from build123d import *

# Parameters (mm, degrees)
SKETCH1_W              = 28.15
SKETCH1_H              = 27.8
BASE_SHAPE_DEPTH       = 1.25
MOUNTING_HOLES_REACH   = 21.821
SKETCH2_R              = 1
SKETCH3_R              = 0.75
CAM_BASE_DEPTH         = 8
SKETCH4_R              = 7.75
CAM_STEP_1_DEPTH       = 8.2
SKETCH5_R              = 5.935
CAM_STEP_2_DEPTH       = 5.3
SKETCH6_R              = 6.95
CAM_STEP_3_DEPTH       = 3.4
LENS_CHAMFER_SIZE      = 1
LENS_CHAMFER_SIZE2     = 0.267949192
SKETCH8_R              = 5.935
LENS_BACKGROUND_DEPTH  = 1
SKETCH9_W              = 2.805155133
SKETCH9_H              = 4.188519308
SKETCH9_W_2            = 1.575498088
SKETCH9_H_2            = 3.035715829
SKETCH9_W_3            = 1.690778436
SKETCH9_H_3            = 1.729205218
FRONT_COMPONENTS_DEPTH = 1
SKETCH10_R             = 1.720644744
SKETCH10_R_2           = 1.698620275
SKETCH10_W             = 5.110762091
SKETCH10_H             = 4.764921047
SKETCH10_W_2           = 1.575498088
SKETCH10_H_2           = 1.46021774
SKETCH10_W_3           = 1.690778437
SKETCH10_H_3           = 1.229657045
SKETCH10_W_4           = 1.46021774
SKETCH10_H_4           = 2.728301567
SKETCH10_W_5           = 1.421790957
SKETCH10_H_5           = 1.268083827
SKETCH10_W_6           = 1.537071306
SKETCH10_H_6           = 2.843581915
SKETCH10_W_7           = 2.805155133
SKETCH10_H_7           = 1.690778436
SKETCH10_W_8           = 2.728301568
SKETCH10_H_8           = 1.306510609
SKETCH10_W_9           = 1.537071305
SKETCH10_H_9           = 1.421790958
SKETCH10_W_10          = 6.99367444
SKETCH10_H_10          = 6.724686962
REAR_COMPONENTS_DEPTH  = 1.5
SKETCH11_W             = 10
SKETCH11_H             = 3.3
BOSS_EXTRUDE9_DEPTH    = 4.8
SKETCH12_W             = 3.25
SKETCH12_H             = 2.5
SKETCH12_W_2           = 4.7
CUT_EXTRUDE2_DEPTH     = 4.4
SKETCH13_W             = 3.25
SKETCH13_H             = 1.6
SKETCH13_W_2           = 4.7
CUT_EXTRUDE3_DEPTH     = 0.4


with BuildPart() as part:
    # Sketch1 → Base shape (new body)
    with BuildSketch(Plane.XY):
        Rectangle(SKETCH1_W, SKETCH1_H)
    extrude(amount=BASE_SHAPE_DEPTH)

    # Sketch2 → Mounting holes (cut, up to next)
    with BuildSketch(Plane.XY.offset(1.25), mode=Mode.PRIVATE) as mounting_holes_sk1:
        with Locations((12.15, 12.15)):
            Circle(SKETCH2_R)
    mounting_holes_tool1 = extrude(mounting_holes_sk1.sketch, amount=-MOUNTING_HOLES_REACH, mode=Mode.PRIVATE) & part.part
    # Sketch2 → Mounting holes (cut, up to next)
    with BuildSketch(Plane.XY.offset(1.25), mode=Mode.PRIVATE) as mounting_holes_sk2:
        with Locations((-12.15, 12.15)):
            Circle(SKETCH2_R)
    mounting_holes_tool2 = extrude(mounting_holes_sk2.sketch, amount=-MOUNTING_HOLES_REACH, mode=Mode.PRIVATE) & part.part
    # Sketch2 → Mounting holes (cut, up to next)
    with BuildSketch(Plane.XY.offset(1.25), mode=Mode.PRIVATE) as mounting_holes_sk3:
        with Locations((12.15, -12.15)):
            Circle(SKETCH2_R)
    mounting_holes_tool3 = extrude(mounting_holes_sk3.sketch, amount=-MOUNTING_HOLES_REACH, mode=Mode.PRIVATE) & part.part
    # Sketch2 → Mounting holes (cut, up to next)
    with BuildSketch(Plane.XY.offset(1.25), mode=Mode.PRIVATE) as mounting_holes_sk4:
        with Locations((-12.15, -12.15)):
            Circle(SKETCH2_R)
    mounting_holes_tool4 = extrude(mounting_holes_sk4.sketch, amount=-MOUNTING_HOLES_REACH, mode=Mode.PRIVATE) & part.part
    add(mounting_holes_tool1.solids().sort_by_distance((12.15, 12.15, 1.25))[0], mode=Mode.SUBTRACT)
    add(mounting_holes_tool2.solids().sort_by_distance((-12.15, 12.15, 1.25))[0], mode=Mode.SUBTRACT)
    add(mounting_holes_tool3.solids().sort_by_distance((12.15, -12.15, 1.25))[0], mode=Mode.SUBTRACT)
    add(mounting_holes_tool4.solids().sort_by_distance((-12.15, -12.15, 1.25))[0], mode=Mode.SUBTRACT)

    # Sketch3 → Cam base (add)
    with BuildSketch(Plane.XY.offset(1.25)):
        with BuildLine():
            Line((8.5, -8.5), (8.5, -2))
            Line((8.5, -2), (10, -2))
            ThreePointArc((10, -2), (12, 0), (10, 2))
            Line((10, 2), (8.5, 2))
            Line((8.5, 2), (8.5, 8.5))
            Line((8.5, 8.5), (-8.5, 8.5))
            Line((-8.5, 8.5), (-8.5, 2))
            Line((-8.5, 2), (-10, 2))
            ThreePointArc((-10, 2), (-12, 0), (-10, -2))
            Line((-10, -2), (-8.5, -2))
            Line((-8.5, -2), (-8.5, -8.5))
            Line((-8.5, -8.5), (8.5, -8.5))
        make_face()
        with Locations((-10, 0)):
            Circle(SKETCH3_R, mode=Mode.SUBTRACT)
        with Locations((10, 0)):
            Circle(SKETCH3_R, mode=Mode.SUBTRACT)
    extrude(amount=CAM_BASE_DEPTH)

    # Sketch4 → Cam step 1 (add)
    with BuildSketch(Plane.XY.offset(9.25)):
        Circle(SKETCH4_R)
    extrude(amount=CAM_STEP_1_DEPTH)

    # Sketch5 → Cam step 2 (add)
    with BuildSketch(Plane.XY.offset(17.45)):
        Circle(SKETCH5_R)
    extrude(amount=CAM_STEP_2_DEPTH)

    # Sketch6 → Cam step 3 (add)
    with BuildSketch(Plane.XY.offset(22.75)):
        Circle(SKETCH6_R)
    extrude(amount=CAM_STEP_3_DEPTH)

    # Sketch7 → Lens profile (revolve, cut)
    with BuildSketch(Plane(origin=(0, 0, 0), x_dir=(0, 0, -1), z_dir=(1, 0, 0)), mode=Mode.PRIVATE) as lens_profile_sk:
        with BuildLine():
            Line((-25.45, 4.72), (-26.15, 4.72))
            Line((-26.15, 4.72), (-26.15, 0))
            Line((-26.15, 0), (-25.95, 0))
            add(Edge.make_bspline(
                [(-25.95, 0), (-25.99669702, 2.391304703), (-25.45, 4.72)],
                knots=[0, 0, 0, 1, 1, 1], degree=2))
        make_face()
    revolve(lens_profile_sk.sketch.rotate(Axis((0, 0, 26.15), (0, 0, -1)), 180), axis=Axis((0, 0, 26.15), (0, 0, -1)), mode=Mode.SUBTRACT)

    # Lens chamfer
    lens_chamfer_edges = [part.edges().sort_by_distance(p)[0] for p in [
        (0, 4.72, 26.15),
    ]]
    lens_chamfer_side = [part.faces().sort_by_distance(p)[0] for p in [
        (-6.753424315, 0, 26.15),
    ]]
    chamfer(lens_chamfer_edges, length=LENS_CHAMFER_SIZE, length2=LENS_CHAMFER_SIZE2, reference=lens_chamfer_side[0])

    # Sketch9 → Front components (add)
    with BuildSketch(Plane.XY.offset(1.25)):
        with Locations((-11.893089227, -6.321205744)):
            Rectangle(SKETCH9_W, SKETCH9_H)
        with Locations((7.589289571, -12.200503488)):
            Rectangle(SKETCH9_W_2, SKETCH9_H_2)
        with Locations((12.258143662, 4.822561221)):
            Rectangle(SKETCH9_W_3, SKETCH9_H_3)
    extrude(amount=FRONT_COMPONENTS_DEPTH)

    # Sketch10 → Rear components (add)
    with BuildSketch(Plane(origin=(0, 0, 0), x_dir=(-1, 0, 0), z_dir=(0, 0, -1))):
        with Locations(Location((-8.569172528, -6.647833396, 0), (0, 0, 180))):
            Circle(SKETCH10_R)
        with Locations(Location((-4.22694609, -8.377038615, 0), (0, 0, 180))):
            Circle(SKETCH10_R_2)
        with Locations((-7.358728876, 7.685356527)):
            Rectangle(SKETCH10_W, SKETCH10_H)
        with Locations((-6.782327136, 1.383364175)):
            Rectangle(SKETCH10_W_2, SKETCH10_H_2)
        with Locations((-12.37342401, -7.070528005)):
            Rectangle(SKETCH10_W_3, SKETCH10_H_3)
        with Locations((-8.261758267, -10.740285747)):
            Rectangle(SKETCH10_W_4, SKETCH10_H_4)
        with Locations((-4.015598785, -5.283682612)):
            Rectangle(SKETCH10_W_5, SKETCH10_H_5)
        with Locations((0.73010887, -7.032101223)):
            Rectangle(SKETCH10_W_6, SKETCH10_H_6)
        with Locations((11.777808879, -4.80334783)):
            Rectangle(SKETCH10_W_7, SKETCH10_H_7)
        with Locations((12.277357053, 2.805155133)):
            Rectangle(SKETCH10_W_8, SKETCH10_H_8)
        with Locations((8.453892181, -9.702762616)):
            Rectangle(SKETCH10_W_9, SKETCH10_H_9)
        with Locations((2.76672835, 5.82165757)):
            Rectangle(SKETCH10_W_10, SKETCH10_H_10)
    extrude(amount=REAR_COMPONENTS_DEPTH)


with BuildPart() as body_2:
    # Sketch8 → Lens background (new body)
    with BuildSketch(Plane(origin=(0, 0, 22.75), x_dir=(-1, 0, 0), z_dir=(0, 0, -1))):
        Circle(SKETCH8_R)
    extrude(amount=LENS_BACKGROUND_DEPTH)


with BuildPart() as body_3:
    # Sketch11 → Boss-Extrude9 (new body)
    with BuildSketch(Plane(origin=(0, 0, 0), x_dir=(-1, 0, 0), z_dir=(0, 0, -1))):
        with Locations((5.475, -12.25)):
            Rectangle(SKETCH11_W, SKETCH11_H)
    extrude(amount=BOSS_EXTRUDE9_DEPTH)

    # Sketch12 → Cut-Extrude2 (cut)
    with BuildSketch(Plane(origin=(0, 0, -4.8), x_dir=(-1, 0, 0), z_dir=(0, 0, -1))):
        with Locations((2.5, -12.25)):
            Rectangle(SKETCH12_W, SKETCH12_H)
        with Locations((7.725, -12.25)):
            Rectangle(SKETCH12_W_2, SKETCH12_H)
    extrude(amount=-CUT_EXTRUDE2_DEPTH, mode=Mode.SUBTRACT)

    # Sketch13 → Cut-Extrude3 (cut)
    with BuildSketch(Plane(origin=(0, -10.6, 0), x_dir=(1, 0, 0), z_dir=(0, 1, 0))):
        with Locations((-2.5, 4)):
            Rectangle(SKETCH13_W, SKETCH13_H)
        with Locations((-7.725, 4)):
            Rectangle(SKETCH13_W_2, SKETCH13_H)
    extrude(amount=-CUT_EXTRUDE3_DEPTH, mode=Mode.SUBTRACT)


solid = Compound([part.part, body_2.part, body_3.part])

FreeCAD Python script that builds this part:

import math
import FreeCAD as App
import Part
import Sketcher
from FreeCAD import Vector
Q = App.Units.Quantity


def edges_at(feature, points):
    """Names of the edges that pass closest to the given points."""
    edges = feature.Shape.Edges
    near = lambda p: min(range(len(edges)), key=lambda i: edges[i].distToShape(Part.Vertex(*p))[0])
    return sorted({f"Edge{near(p) + 1}" for p in points})


def add_polygon(sketch, points):
    """Adds a closed chain of lines whose ends are joined by coincident constraints."""
    first, n = sketch.GeometryCount, len(points)
    for a, b in zip(points, points[1:] + points[:1]):
        sketch.addGeometry(Part.LineSegment(App.Vector(*a, 0), App.Vector(*b, 0)), False)
    for i in range(n):
        sketch.addConstraint(Sketcher.Constraint("Coincident", first + i, 2, first + (i + 1) % n, 1))

doc = App.newDocument("Part")
body = doc.addObject("PartDesign::Body", "Body")

# Sketch on XY plane
sketch1 = body.newObject("Sketcher::SketchObject", "Sketch")
sketch1.AttachmentSupport = (doc.getObject("XY_Plane"), [""])
sketch1.MapMode = "FlatFace"
add_polygon(sketch1, [(-14.075, 13.9), (-14.075, -13.9), (14.075, -13.9), (14.075, 13.9)])  # lines 0-3
sketch1.addConstraint(Sketcher.Constraint("Vertical", 0))
sketch1.addConstraint(Sketcher.Constraint("Horizontal", 1))
sketch1.addConstraint(Sketcher.Constraint("Vertical", 2))
sketch1.addConstraint(Sketcher.Constraint("Horizontal", 3))
sketch1.addConstraint(Sketcher.Constraint("Symmetric", 0, 2, 2, 2, -1, 1))
sketch1.addConstraint(Sketcher.Constraint("DistanceY", 0, 2, 0, 1, Q("27.8 mm")))
sketch1.addConstraint(Sketcher.Constraint("DistanceX", 1, 1, 1, 2, Q("28.15 mm")))
pad1 = body.newObject("PartDesign::Pad", "Pad")
pad1.Profile = sketch1
pad1.Length = 1.25

# Sketch on XY plane
sketch2 = body.newObject("Sketcher::SketchObject", "Sketch001")
sketch2.AttachmentSupport = (doc.getObject("XY_Plane"), [""])
sketch2.MapMode = "FlatFace"
sketch2.AttachmentOffset = App.Placement(Vector(0, 0, 1.25), App.Rotation())
sketch2.addGeometry(Part.Circle(Vector(12.15, 12.15, 0), Vector(0, 0, 1), 1), False)
sketch2.addConstraint(Sketcher.Constraint("Diameter", 0, Q("2 mm")))
sketch2.addConstraint(Sketcher.Constraint("DistanceX", -1, 1, 0, 3, Q("12.15 mm")))
sketch2.addConstraint(Sketcher.Constraint("DistanceY", -1, 1, 0, 3, Q("12.15 mm")))
pocket1 = body.newObject("PartDesign::Pocket", "Pocket")
pocket1.Profile = sketch2
pocket1.Type = "UpToFirst"

# Sketch on XY plane
sketch3 = body.newObject("Sketcher::SketchObject", "Sketch002")
sketch3.AttachmentSupport = (doc.getObject("XY_Plane"), [""])
sketch3.MapMode = "FlatFace"
sketch3.AttachmentOffset = App.Placement(Vector(0, 0, 1.25), App.Rotation())
sketch3.addGeometry(Part.Circle(Vector(-12.15, 12.15, 0), Vector(0, 0, 1), 1), False)
sketch3.addConstraint(Sketcher.Constraint("Diameter", 0, Q("2 mm")))
sketch3.addConstraint(Sketcher.Constraint("DistanceX", 0, 3, -1, 1, Q("12.15 mm")))
sketch3.addConstraint(Sketcher.Constraint("DistanceY", -1, 1, 0, 3, Q("12.15 mm")))
pocket2 = body.newObject("PartDesign::Pocket", "Pocket001")
pocket2.Profile = sketch3
pocket2.Type = "UpToFirst"

# Sketch on XY plane
sketch4 = body.newObject("Sketcher::SketchObject", "Sketch003")
sketch4.AttachmentSupport = (doc.getObject("XY_Plane"), [""])
sketch4.MapMode = "FlatFace"
sketch4.AttachmentOffset = App.Placement(Vector(0, 0, 1.25), App.Rotation())
sketch4.addGeometry(Part.Circle(Vector(12.15, -12.15, 0), Vector(0, 0, 1), 1), False)
sketch4.addConstraint(Sketcher.Constraint("Diameter", 0, Q("2 mm")))
sketch4.addConstraint(Sketcher.Constraint("DistanceX", -1, 1, 0, 3, Q("12.15 mm")))
sketch4.addConstraint(Sketcher.Constraint("DistanceY", 0, 3, -1, 1, Q("12.15 mm")))
pocket3 = body.newObject("PartDesign::Pocket", "Pocket002")
pocket3.Profile = sketch4
pocket3.Type = "UpToFirst"

# Sketch on XY plane
sketch5 = body.newObject("Sketcher::SketchObject", "Sketch004")
sketch5.AttachmentSupport = (doc.getObject("XY_Plane"), [""])
sketch5.MapMode = "FlatFace"
sketch5.AttachmentOffset = App.Placement(Vector(0, 0, 1.25), App.Rotation())
sketch5.addGeometry(Part.Circle(Vector(-12.15, -12.15, 0), Vector(0, 0, 1), 1), False)
sketch5.addConstraint(Sketcher.Constraint("Diameter", 0, Q("2 mm")))
sketch5.addConstraint(Sketcher.Constraint("DistanceX", 0, 3, -1, 1, Q("12.15 mm")))
sketch5.addConstraint(Sketcher.Constraint("DistanceY", 0, 3, -1, 1, Q("12.15 mm")))
pocket4 = body.newObject("PartDesign::Pocket", "Pocket003")
pocket4.Profile = sketch5
pocket4.Type = "UpToFirst"

# Sketch on XY plane
sketch6 = body.newObject("Sketcher::SketchObject", "Sketch005")
sketch6.AttachmentSupport = (doc.getObject("XY_Plane"), [""])
sketch6.MapMode = "FlatFace"
sketch6.AttachmentOffset = App.Placement(Vector(0, 0, 1.25), App.Rotation())
sketch6.addGeometry(Part.LineSegment(Vector(8.5, -8.5, 0), Vector(8.5, -2, 0)), False)
sketch6.addGeometry(Part.LineSegment(Vector(8.5, -2, 0), Vector(10, -2, 0)), False)
sketch6.addGeometry(Part.ArcOfCircle(Part.Circle(Vector(10, 0, 0), Vector(0, 0, 1), 2), math.radians(-90), math.radians(90)), False)
sketch6.addGeometry(Part.LineSegment(Vector(10, 2, 0), Vector(8.5, 2, 0)), False)
sketch6.addGeometry(Part.LineSegment(Vector(8.5, 2, 0), Vector(8.5, 8.5, 0)), False)
sketch6.addGeometry(Part.LineSegment(Vector(8.5, 8.5, 0), Vector(-8.5, 8.5, 0)), False)
sketch6.addGeometry(Part.LineSegment(Vector(-8.5, 8.5, 0), Vector(-8.5, 2, 0)), False)
sketch6.addGeometry(Part.LineSegment(Vector(-8.5, 2, 0), Vector(-10, 2, 0)), False)
sketch6.addGeometry(Part.ArcOfCircle(Part.Circle(Vector(-10, 0, 0), Vector(0, 0, 1), 2), math.radians(90), math.radians(270)), False)
sketch6.addGeometry(Part.LineSegment(Vector(-10, -2, 0), Vector(-8.5, -2, 0)), False)
sketch6.addGeometry(Part.LineSegment(Vector(-8.5, -2, 0), Vector(-8.5, -8.5, 0)), False)
sketch6.addGeometry(Part.LineSegment(Vector(-8.5, -8.5, 0), Vector(8.5, -8.5, 0)), False)
sketch6.addGeometry(Part.Circle(Vector(-10, 0, 0), Vector(0, 0, 1), 0.75), False)
sketch6.addGeometry(Part.Circle(Vector(10, 0, 0), Vector(0, 0, 1), 0.75), False)
sketch6.addConstraint(Sketcher.Constraint("Coincident", 0, 2, 1, 1))
sketch6.addConstraint(Sketcher.Constraint("Tangent", 1, 2, 2, 1))
sketch6.addConstraint(Sketcher.Constraint("Tangent", 2, 2, 3, 1))
sketch6.addConstraint(Sketcher.Constraint("Coincident", 3, 2, 4, 1))
sketch6.addConstraint(Sketcher.Constraint("Coincident", 4, 2, 5, 1))
sketch6.addConstraint(Sketcher.Constraint("Coincident", 5, 2, 6, 1))
sketch6.addConstraint(Sketcher.Constraint("Coincident", 6, 2, 7, 1))
sketch6.addConstraint(Sketcher.Constraint("Tangent", 7, 2, 8, 1))
sketch6.addConstraint(Sketcher.Constraint("Tangent", 8, 2, 9, 1))
sketch6.addConstraint(Sketcher.Constraint("Coincident", 9, 2, 10, 1))
sketch6.addConstraint(Sketcher.Constraint("Coincident", 10, 2, 11, 1))
sketch6.addConstraint(Sketcher.Constraint("Coincident", 11, 2, 0, 1))
sketch6.addConstraint(Sketcher.Constraint("Vertical", 0))
sketch6.addConstraint(Sketcher.Constraint("Horizontal", 1))
sketch6.addConstraint(Sketcher.Constraint("Horizontal", 3))
sketch6.addConstraint(Sketcher.Constraint("Vertical", 4))
sketch6.addConstraint(Sketcher.Constraint("Horizontal", 5))
sketch6.addConstraint(Sketcher.Constraint("Vertical", 6))
sketch6.addConstraint(Sketcher.Constraint("Horizontal", 7))
sketch6.addConstraint(Sketcher.Constraint("Horizontal", 9))
sketch6.addConstraint(Sketcher.Constraint("Vertical", 10))
sketch6.addConstraint(Sketcher.Constraint("Horizontal", 11))
sketch6.addConstraint(Sketcher.Constraint("Coincident", 12, 3, 8, 3))
sketch6.addConstraint(Sketcher.Constraint("Coincident", 13, 3, 2, 3))
sketch6.addConstraint(Sketcher.Constraint("Equal", 2, 8))
sketch6.addConstraint(Sketcher.Constraint("Equal", 12, 13))
sketch6.addConstraint(Sketcher.Constraint("Symmetric", 2, 3, 8, 3, -1, 1))
sketch6.addConstraint(Sketcher.Constraint("Symmetric", 4, 2, 10, 2, -1, 1))
sketch6.addConstraint(Sketcher.Constraint("Symmetric", 3, 2, 6, 2, -2))
sketch6.addConstraint(Sketcher.Constraint("Vertical", 0, 2, 3, 2))
sketch6.addConstraint(Sketcher.Constraint("Radius", 2, Q("2 mm")))
sketch6.addConstraint(Sketcher.Constraint("Diameter", 12, Q("1.5 mm")))
sketch6.addConstraint(Sketcher.Constraint("DistanceX", 5, 2, 5, 1, Q("17 mm")))
sketch6.addConstraint(Sketcher.Constraint("DistanceX", 1, 1, 1, 2, Q("1.5 mm")))
sketch6.addConstraint(Sketcher.Constraint("DistanceY", 0, 1, 0, 2, Q("6.5 mm")))
pad2 = body.newObject("PartDesign::Pad", "Pad001")
pad2.Profile = sketch6
pad2.Length = 8

# Sketch on XY plane
sketch7 = body.newObject("Sketcher::SketchObject", "Sketch006")
sketch7.AttachmentSupport = (doc.getObject("XY_Plane"), [""])
sketch7.MapMode = "FlatFace"
sketch7.AttachmentOffset = App.Placement(Vector(0, 0, 9.25), App.Rotation())
sketch7.addGeometry(Part.Circle(Vector(0, 0, 0), Vector(0, 0, 1), 7.75), False)
sketch7.addConstraint(Sketcher.Constraint("Coincident", 0, 3, -1, 1))
sketch7.addConstraint(Sketcher.Constraint("Diameter", 0, Q("15.5 mm")))
pad3 = body.newObject("PartDesign::Pad", "Pad002")
pad3.Profile = sketch7
pad3.Length = 8.2

# Sketch on XY plane
sketch8 = body.newObject("Sketcher::SketchObject", "Sketch007")
sketch8.AttachmentSupport = (doc.getObject("XY_Plane"), [""])
sketch8.MapMode = "FlatFace"
sketch8.AttachmentOffset = App.Placement(Vector(0, 0, 17.45), App.Rotation())
sketch8.addGeometry(Part.Circle(Vector(0, 0, 0), Vector(0, 0, 1), 5.935), False)
sketch8.addConstraint(Sketcher.Constraint("Coincident", 0, 3, -1, 1))
sketch8.addConstraint(Sketcher.Constraint("Diameter", 0, Q("11.87 mm")))
pad4 = body.newObject("PartDesign::Pad", "Pad003")
pad4.Profile = sketch8
pad4.Length = 5.3

# Sketch on XY plane
sketch9 = body.newObject("Sketcher::SketchObject", "Sketch008")
sketch9.AttachmentSupport = (doc.getObject("XY_Plane"), [""])
sketch9.MapMode = "FlatFace"
sketch9.AttachmentOffset = App.Placement(Vector(0, 0, 22.75), App.Rotation())
sketch9.addGeometry(Part.Circle(Vector(0, 0, 0), Vector(0, 0, 1), 6.95), False)
sketch9.addConstraint(Sketcher.Constraint("Coincident", 0, 3, -1, 1))
sketch9.addConstraint(Sketcher.Constraint("Diameter", 0, Q("13.9 mm")))
pad5 = body.newObject("PartDesign::Pad", "Pad004")
pad5.Profile = sketch9
pad5.Length = 3.4

# Sketch on YZ plane
sketch10 = body.newObject("Sketcher::SketchObject", "Sketch009")
sketch10.AttachmentSupport = (doc.getObject("YZ_Plane"), [""])
sketch10.MapMode = "FlatFace"
sketch10.addGeometry(Part.LineSegment(Vector(4.72, 25.45, 0), Vector(4.72, 26.15, 0)), False)
sketch10.addGeometry(Part.LineSegment(Vector(4.72, 26.15, 0), Vector(0, 26.15, 0)), False)
sketch10.addGeometry(Part.LineSegment(Vector(0, 26.15, 0), Vector(0, 25.95, 0)), False)
sketch10.addGeometry(Part.BSplineCurve([Vector(0, 25.95, 0), Vector(2.391305, 25.996697, 0), Vector(4.72, 25.45, 0)], [3, 3], [0, 1], False, 2, [1, 1, 1], False), False)
sketch10.addConstraint(Sketcher.Constraint("Block", 3))
sketch10.addConstraint(Sketcher.Constraint("Coincident", 0, 2, 1, 1))
sketch10.addConstraint(Sketcher.Constraint("Coincident", 1, 2, 2, 1))
sketch10.addConstraint(Sketcher.Constraint("Coincident", 2, 2, 3, 1))
sketch10.addConstraint(Sketcher.Constraint("Coincident", 3, 2, 0, 1))
sketch10.addConstraint(Sketcher.Constraint("Vertical", 0))
sketch10.addConstraint(Sketcher.Constraint("Horizontal", 1))
sketch10.addConstraint(Sketcher.Constraint("Vertical", 2))
sketch10.addConstraint(Sketcher.Constraint("DistanceY", 0, 1, 0, 2, Q("0.7 mm")))
groove = body.newObject("PartDesign::Groove", "Groove")
groove.Profile = sketch10
groove.ReferenceAxis = (sketch10, ["V_Axis"])
groove.Angle = 360
doc.recompute()

chamfer = body.newObject("PartDesign::Chamfer", "Chamfer")
chamfer.Base = (groove, edges_at(groove, [(0, 4.72, 26.15)]))
chamfer.ChamferType = "Two distances"
chamfer.Size = 1
chamfer.Size2 = 0.267949

# Sketch on XY plane
sketch11 = body.newObject("Sketcher::SketchObject", "Sketch010")
sketch11.AttachmentSupport = (doc.getObject("XY_Plane"), [""])
sketch11.MapMode = "FlatFace"
sketch11.AttachmentOffset = App.Placement(Vector(0, 0, 1.25), App.Rotation())
add_polygon(sketch11, [(-13.295667, -4.226946), (-13.295667, -8.415465), (-10.490512, -8.415465), (-10.490512, -4.226946)])  # lines 0-3
add_polygon(sketch11, [(6.801541, -10.682646), (6.801541, -13.718361), (8.377039, -13.718361), (8.377039, -10.682646)])  # lines 4-7
add_polygon(sketch11, [(11.412754, 5.687164), (11.412754, 3.957959), (13.103533, 3.957959), (13.103533, 5.687164)])  # lines 8-11
sketch11.addConstraint(Sketcher.Constraint("Vertical", 0))
sketch11.addConstraint(Sketcher.Constraint("Horizontal", 1))
sketch11.addConstraint(Sketcher.Constraint("Vertical", 2))
sketch11.addConstraint(Sketcher.Constraint("Horizontal", 3))
sketch11.addConstraint(Sketcher.Constraint("Vertical", 4))
sketch11.addConstraint(Sketcher.Constraint("Horizontal", 5))
sketch11.addConstraint(Sketcher.Constraint("Vertical", 6))
sketch11.addConstraint(Sketcher.Constraint("Horizontal", 7))
sketch11.addConstraint(Sketcher.Constraint("Vertical", 8))
sketch11.addConstraint(Sketcher.Constraint("Horizontal", 9))
sketch11.addConstraint(Sketcher.Constraint("Vertical", 10))
sketch11.addConstraint(Sketcher.Constraint("Horizontal", 11))
sketch11.addConstraint(Sketcher.Constraint("DistanceX", 5, 1, 5, 2, Q("1.575498 mm")))
sketch11.addConstraint(Sketcher.Constraint("DistanceX", 9, 1, 9, 2, Q("1.690778 mm")))
sketch11.addConstraint(Sketcher.Constraint("DistanceY", 0, 2, 0, 1, Q("4.188519 mm")))
sketch11.addConstraint(Sketcher.Constraint("DistanceY", 6, 2, 2, 2, Q("6.455699 mm")))
sketch11.addConstraint(Sketcher.Constraint("DistanceX", 1, 1, 1, 2, Q("2.805155 mm")))
sketch11.addConstraint(Sketcher.Constraint("DistanceY", 4, 2, 4, 1, Q("3.035716 mm")))
sketch11.addConstraint(Sketcher.Constraint("DistanceY", 8, 2, 8, 1, Q("1.729205 mm")))
sketch11.addConstraint(Sketcher.Constraint("DistanceX", 1, 2, -1, 1, Q("10.490512 mm")))
sketch11.addConstraint(Sketcher.Constraint("DistanceX", -1, 1, 4, 2, Q("6.801541 mm")))
sketch11.addConstraint(Sketcher.Constraint("DistanceY", 4, 2, -1, 1, Q("13.718361 mm")))
sketch11.addConstraint(Sketcher.Constraint("DistanceY", -1, 1, 8, 2, Q("3.957959 mm")))
sketch11.addConstraint(Sketcher.Constraint("DistanceX", -1, 1, 8, 2, Q("11.412754 mm")))
pad6 = body.newObject("PartDesign::Pad", "Pad005")
pad6.Profile = sketch11
pad6.Length = 1

# Sketch on XY plane
sketch12 = body.newObject("Sketcher::SketchObject", "Sketch011")
sketch12.AttachmentSupport = (doc.getObject("XY_Plane"), [""])
sketch12.MapMode = "FlatFace"
sketch12.addGeometry(Part.Circle(Vector(8.569173, -6.647833, 0), Vector(0, 0, 1), 1.720645), False)  # 0
sketch12.addGeometry(Part.Circle(Vector(4.226946, -8.377039, 0), Vector(0, 0, 1), 1.69862), False)  # 1
add_polygon(sketch12, [(9.91411, 10.067817), (9.91411, 5.302896), (4.803348, 5.302896), (4.803348, 10.067817)])  # lines 2-5
add_polygon(sketch12, [(7.570076, 2.113473), (7.570076, 0.653255), (5.994578, 0.653255), (5.994578, 2.113473)])  # lines 6-9
add_polygon(sketch12, [(13.218813, -6.455699), (13.218813, -7.685357), (11.528035, -7.685357), (11.528035, -6.455699)])  # lines 10-13
add_polygon(sketch12, [(8.991867, -9.376135), (8.991867, -12.104437), (7.531649, -12.104437), (7.531649, -9.376135)])  # lines 14-17
add_polygon(sketch12, [(4.726494, -4.649641), (4.726494, -5.917725), (3.304703, -5.917725), (3.304703, -4.649641)])  # lines 18-21
add_polygon(sketch12, [(0.038427, -5.61031), (0.038427, -8.453892), (-1.498645, -8.453892), (-1.498645, -5.61031)])  # lines 22-25
add_polygon(sketch12, [(-10.375231, -3.957959), (-10.375231, -5.648737), (-13.180386, -5.648737), (-13.180386, -3.957959)])  # lines 26-29
add_polygon(sketch12, [(-10.913206, 3.45841), (-10.913206, 2.1519), (-13.641508, 2.1519), (-13.641508, 3.45841)])  # lines 30-33
add_polygon(sketch12, [(-7.685357, -8.991867), (-7.685357, -10.413658), (-9.222428, -10.413658), (-9.222428, -8.991867)])  # lines 34-37
add_polygon(sketch12, [(0.730109, 9.184001), (0.730109, 2.459314), (-6.263566, 2.459314), (-6.263566, 9.184001)])  # lines 38-41
sketch12.addConstraint(Sketcher.Constraint("Vertical", 2))
sketch12.addConstraint(Sketcher.Constraint("Horizontal", 3))
sketch12.addConstraint(Sketcher.Constraint("Vertical", 4))
sketch12.addConstraint(Sketcher.Constraint("Horizontal", 5))
sketch12.addConstraint(Sketcher.Constraint("Vertical", 6))
sketch12.addConstraint(Sketcher.Constraint("Horizontal", 7))
sketch12.addConstraint(Sketcher.Constraint("Vertical", 8))
sketch12.addConstraint(Sketcher.Constraint("Horizontal", 9))
sketch12.addConstraint(Sketcher.Constraint("Vertical", 10))
sketch12.addConstraint(Sketcher.Constraint("Horizontal", 11))
sketch12.addConstraint(Sketcher.Constraint("Vertical", 12))
sketch12.addConstraint(Sketcher.Constraint("Horizontal", 13))
sketch12.addConstraint(Sketcher.Constraint("Vertical", 14))
sketch12.addConstraint(Sketcher.Constraint("Horizontal", 15))
sketch12.addConstraint(Sketcher.Constraint("Vertical", 16))
sketch12.addConstraint(Sketcher.Constraint("Horizontal", 17))
sketch12.addConstraint(Sketcher.Constraint("Vertical", 18))
sketch12.addConstraint(Sketcher.Constraint("Horizontal", 19))
sketch12.addConstraint(Sketcher.Constraint("Vertical", 20))
sketch12.addConstraint(Sketcher.Constraint("Horizontal", 21))
sketch12.addConstraint(Sketcher.Constraint("Vertical", 22))
sketch12.addConstraint(Sketcher.Constraint("Horizontal", 23))
sketch12.addConstraint(Sketcher.Constraint("Vertical", 24))
sketch12.addConstraint(Sketcher.Constraint("Horizontal", 25))
sketch12.addConstraint(Sketcher.Constraint("Vertical", 26))
sketch12.addConstraint(Sketcher.Constraint("Horizontal", 27))
sketch12.addConstraint(Sketcher.Constraint("Vertical", 28))
sketch12.addConstraint(Sketcher.Constraint("Horizontal", 29))
sketch12.addConstraint(Sketcher.Constraint("Vertical", 30))
sketch12.addConstraint(Sketcher.Constraint("Horizontal", 31))
sketch12.addConstraint(Sketcher.Constraint("Vertical", 32))
sketch12.addConstraint(Sketcher.Constraint("Horizontal", 33))
sketch12.addConstraint(Sketcher.Constraint("Vertical", 34))
sketch12.addConstraint(Sketcher.Constraint("Horizontal", 35))
sketch12.addConstraint(Sketcher.Constraint("Vertical", 36))
sketch12.addConstraint(Sketcher.Constraint("Horizontal", 37))
sketch12.addConstraint(Sketcher.Constraint("Vertical", 38))
sketch12.addConstraint(Sketcher.Constraint("Horizontal", 39))
sketch12.addConstraint(Sketcher.Constraint("Vertical", 40))
sketch12.addConstraint(Sketcher.Constraint("Horizontal", 41))
sketch12.addConstraint(Sketcher.Constraint("Equal", 25, 35))
sketch12.addConstraint(Sketcher.Constraint("Equal", 17, 6))
sketch12.addConstraint(Sketcher.Constraint("Equal", 33, 14))
sketch12.addConstraint(Sketcher.Constraint("Equal", 13, 26))
sketch12.addConstraint(Sketcher.Constraint("Equal", 21, 34))
sketch12.addConstraint(Sketcher.Constraint("Diameter", 0, Q("3.441289 mm")))
sketch12.addConstraint(Sketcher.Constraint("Diameter", 1, Q("3.397241 mm")))
sketch12.addConstraint(Sketcher.Constraint("DistanceX", 7, 2, 7, 1, Q("1.575498 mm")))
sketch12.addConstraint(Sketcher.Constraint("DistanceX", 31, 2, 31, 1, Q("2.728302 mm")))
sketch12.addConstraint(Sketcher.Constraint("DistanceY", -1, 1, 40, 2, Q("9.184001 mm")))
sketch12.addConstraint(Sketcher.Constraint("DistanceX", 11, 2, 11, 1, Q("1.690778 mm")))
sketch12.addConstraint(Sketcher.Constraint("DistanceX", 19, 2, 19, 1, Q("1.421791 mm")))
sketch12.addConstraint(Sketcher.Constraint("DistanceX", 23, 2, 23, 1, Q("1.537071 mm")))
sketch12.addConstraint(Sketcher.Constraint("DistanceY", 2, 2, 2, 1, Q("4.764921 mm")))
sketch12.addConstraint(Sketcher.Constraint("DistanceY", 22, 2, 22, 1, Q("2.843582 mm")))
sketch12.addConstraint(Sketcher.Constraint("DistanceY", 30, 2, 30, 1, Q("1.306511 mm")))
sketch12.addConstraint(Sketcher.Constraint("DistanceY", 12, 2, -1, 1, Q("6.455699 mm")))
sketch12.addConstraint(Sketcher.Constraint("DistanceY", -1, 1, 30, 2, Q("2.1519 mm")))
sketch12.addConstraint(Sketcher.Constraint("DistanceX", 1, 3, 3, 2, Q("0.576402 mm")))
sketch12.addConstraint(Sketcher.Constraint("DistanceY", 16, 2, 0, 3, Q("2.728302 mm")))
sketch12.addConstraint(Sketcher.Constraint("DistanceY", 34, 2, 29, 2, Q("6.455699 mm")))
sketch12.addConstraint(Sketcher.Constraint("DistanceX", 3, 2, 3, 1, Q("5.110762 mm")))
sketch12.addConstraint(Sketcher.Constraint("DistanceX", 15, 2, 15, 1, Q("1.460218 mm")))
sketch12.addConstraint(Sketcher.Constraint("DistanceX", 27, 2, 27, 1, Q("2.805155 mm")))
sketch12.addConstraint(Sketcher.Constraint("DistanceX", 39, 2, 39, 1, Q("6.993674 mm")))
sketch12.addConstraint(Sketcher.Constraint("DistanceY", 10, 2, 10, 1, Q("1.229657 mm")))
sketch12.addConstraint(Sketcher.Constraint("DistanceY", 18, 2, 18, 1, Q("1.268084 mm")))
sketch12.addConstraint(Sketcher.Constraint("DistanceY", 38, 2, 38, 1, Q("6.724687 mm")))
sketch12.addConstraint(Sketcher.Constraint("DistanceY", 1, 3, -1, 1, Q("8.377039 mm")))
sketch12.addConstraint(Sketcher.Constraint("DistanceX", -1, 1, 2, 2, Q("9.91411 mm")))
sketch12.addConstraint(Sketcher.Constraint("DistanceX", -1, 1, 7, 2, Q("5.994578 mm")))
sketch12.addConstraint(Sketcher.Constraint("DistanceX", -1, 1, 15, 2, Q("7.531649 mm")))
sketch12.addConstraint(Sketcher.Constraint("DistanceY", 20, 2, -1, 1, Q("4.649641 mm")))
sketch12.addConstraint(Sketcher.Constraint("DistanceY", 24, 2, -1, 1, Q("5.61031 mm")))
sketch12.addConstraint(Sketcher.Constraint("DistanceX", 26, 2, -1, 1, Q("10.375231 mm")))
sketch12.addConstraint(Sketcher.Constraint("DistanceY", 28, 2, -1, 1, Q("3.957959 mm")))
sketch12.addConstraint(Sketcher.Constraint("DistanceX", -1, 1, 38, 2, Q("0.730109 mm")))
sketch12.addConstraint(Sketcher.Constraint("DistanceY", 0, 3, 2, 2, Q("11.950729 mm")))
sketch12.addConstraint(Sketcher.Constraint("DistanceY", 6, 2, 2, 2, Q("4.649641 mm")))
sketch12.addConstraint(Sketcher.Constraint("DistanceX", 0, 3, 10, 2, Q("4.649641 mm")))
sketch12.addConstraint(Sketcher.Constraint("DistanceY", 10, 2, 6, 2, Q("8.338612 mm")))
sketch12.addConstraint(Sketcher.Constraint("DistanceX", 1, 3, 11, 2, Q("7.301089 mm")))
sketch12.addConstraint(Sketcher.Constraint("DistanceX", 1, 3, 18, 2, Q("0.499548 mm")))
sketch12.addConstraint(Sketcher.Constraint("DistanceX", 22, 2, 1, 3, Q("4.188519 mm")))
sketch12.addConstraint(Sketcher.Constraint("DistanceX", 28, 2, 30, 2, Q("2.26718 mm")))
sketch12.addConstraint(Sketcher.Constraint("DistanceX", 27, 2, 34, 2, Q("5.49503 mm")))
pad7 = body.newObject("PartDesign::Pad", "Pad006")
pad7.Profile = sketch12
pad7.Length = 1.5
pad7.Reversed = True
body2 = doc.addObject("PartDesign::Body", "Body001")

# Sketch on XY plane
sketch13 = body2.newObject("Sketcher::SketchObject", "Sketch012")
sketch13.AttachmentSupport = (doc.getObject("XY_Plane001"), [""])
sketch13.MapMode = "FlatFace"
sketch13.AttachmentOffset = App.Placement(Vector(0, 0, 22.75), App.Rotation())
sketch13.addGeometry(Part.Circle(Vector(0, 0, 0), Vector(0, 0, 1), 5.935), False)
sketch13.addConstraint(Sketcher.Constraint("Coincident", 0, 3, -1, 1))
sketch13.addConstraint(Sketcher.Constraint("Diameter", 0, Q("11.87 mm")))
pad8 = body2.newObject("PartDesign::Pad", "Pad007")
pad8.Profile = sketch13
pad8.Length = 1
pad8.Reversed = True
body3 = doc.addObject("PartDesign::Body", "Body002")

# Sketch on XY plane
sketch14 = body3.newObject("Sketcher::SketchObject", "Sketch013")
sketch14.AttachmentSupport = (doc.getObject("XY_Plane002"), [""])
sketch14.MapMode = "FlatFace"
add_polygon(sketch14, [(-0.475, -10.6), (-0.475, -13.9), (-10.475, -13.9), (-10.475, -10.6)])  # lines 0-3
sketch14.addConstraint(Sketcher.Constraint("Vertical", 0))
sketch14.addConstraint(Sketcher.Constraint("Horizontal", 1))
sketch14.addConstraint(Sketcher.Constraint("Vertical", 2))
sketch14.addConstraint(Sketcher.Constraint("Horizontal", 3))
sketch14.addConstraint(Sketcher.Constraint("DistanceX", 1, 2, 1, 1, Q("10 mm")))
sketch14.addConstraint(Sketcher.Constraint("DistanceY", 0, 2, 0, 1, Q("3.3 mm")))
sketch14.addConstraint(Sketcher.Constraint("DistanceY", 0, 2, -1, 1, Q("13.9 mm")))
sketch14.addConstraint(Sketcher.Constraint("DistanceX", 0, 2, -1, 1, Q("0.475 mm")))
pad9 = body3.newObject("PartDesign::Pad", "Pad008")
pad9.Profile = sketch14
pad9.Length = 4.8
pad9.Reversed = True

# Sketch on XY plane
sketch15 = body3.newObject("Sketcher::SketchObject", "Sketch014")
sketch15.AttachmentSupport = (doc.getObject("XY_Plane002"), [""])
sketch15.MapMode = "FlatFace"
sketch15.AttachmentOffset = App.Placement(Vector(0, 0, -4.8), App.Rotation())
add_polygon(sketch15, [(-0.875, -11), (-0.875, -13.5), (-4.125, -13.5), (-4.125, -11)])  # lines 0-3
add_polygon(sketch15, [(-5.375, -11), (-5.375, -13.5), (-10.075, -13.5), (-10.075, -11)])  # lines 4-7
sketch15.addConstraint(Sketcher.Constraint("Vertical", 0))
sketch15.addConstraint(Sketcher.Constraint("Horizontal", 1))
sketch15.addConstraint(Sketcher.Constraint("Vertical", 2))
sketch15.addConstraint(Sketcher.Constraint("Horizontal", 3))
sketch15.addConstraint(Sketcher.Constraint("Vertical", 4))
sketch15.addConstraint(Sketcher.Constraint("Horizontal", 5))
sketch15.addConstraint(Sketcher.Constraint("Vertical", 6))
sketch15.addConstraint(Sketcher.Constraint("Horizontal", 7))
sketch15.addConstraint(Sketcher.Constraint("Horizontal", 1, 2, 4, 2))
sketch15.addConstraint(Sketcher.Constraint("Horizontal", 3, 2, 6, 2))
sketch15.addConstraint(Sketcher.Constraint("DistanceX", 5, 2, 5, 1, Q("4.7 mm")))
sketch15.addConstraint(Sketcher.Constraint("DistanceY", 0, 2, 0, 1, Q("2.5 mm")))
sketch15.addConstraint(Sketcher.Constraint("DistanceY", 2, 2, -1, 1, Q("11 mm")))
sketch15.addConstraint(Sketcher.Constraint("DistanceX", 1, 2, 1, 1, Q("3.25 mm")))
sketch15.addConstraint(Sketcher.Constraint("DistanceX", 4, 2, 0, 2, Q("4.5 mm")))
sketch15.addConstraint(Sketcher.Constraint("DistanceX", 0, 2, -1, 1, Q("0.875 mm")))
pocket5 = body3.newObject("PartDesign::Pocket", "Pocket004")
pocket5.Profile = sketch15
pocket5.Length = 4.4
pocket5.Reversed = True

# Sketch on XZ plane
sketch16 = body3.newObject("Sketcher::SketchObject", "Sketch015")
sketch16.AttachmentSupport = (doc.getObject("XZ_Plane002"), [""])
sketch16.MapMode = "FlatFace"
sketch16.AttachmentOffset = App.Placement(Vector(0, 0, 10.6), App.Rotation())
add_polygon(sketch16, [(-4.125, -4.8), (-4.125, -3.2), (-0.875, -3.2), (-0.875, -4.8)])  # lines 0-3
add_polygon(sketch16, [(-10.075, -4.8), (-10.075, -3.2), (-5.375, -3.2), (-5.375, -4.8)])  # lines 4-7
sketch16.addConstraint(Sketcher.Constraint("Vertical", 0))
sketch16.addConstraint(Sketcher.Constraint("Horizontal", 1))
sketch16.addConstraint(Sketcher.Constraint("Vertical", 2))
sketch16.addConstraint(Sketcher.Constraint("Horizontal", 3))
sketch16.addConstraint(Sketcher.Constraint("Vertical", 4))
sketch16.addConstraint(Sketcher.Constraint("Horizontal", 5))
sketch16.addConstraint(Sketcher.Constraint("Vertical", 6))
sketch16.addConstraint(Sketcher.Constraint("Horizontal", 7))
sketch16.addConstraint(Sketcher.Constraint("Horizontal", 1, 2, 4, 2))
sketch16.addConstraint(Sketcher.Constraint("Horizontal", 3, 2, 6, 2))
sketch16.addConstraint(Sketcher.Constraint("DistanceX", 5, 1, 5, 2, Q("4.7 mm")))
sketch16.addConstraint(Sketcher.Constraint("DistanceY", 0, 1, 0, 2, Q("1.6 mm")))
sketch16.addConstraint(Sketcher.Constraint("DistanceX", 1, 1, 1, 2, Q("3.25 mm")))
sketch16.addConstraint(Sketcher.Constraint("DistanceY", 0, 2, -1, 1, Q("3.2 mm")))
sketch16.addConstraint(Sketcher.Constraint("DistanceX", 4, 2, 1, 2, Q("9.2 mm")))
sketch16.addConstraint(Sketcher.Constraint("DistanceX", 0, 2, -1, 1, Q("4.125 mm")))
pocket6 = body3.newObject("PartDesign::Pocket", "Pocket005")
pocket6.Profile = sketch16
pocket6.Length = 0.4
pocket6.Reversed = True

doc.recompute()
